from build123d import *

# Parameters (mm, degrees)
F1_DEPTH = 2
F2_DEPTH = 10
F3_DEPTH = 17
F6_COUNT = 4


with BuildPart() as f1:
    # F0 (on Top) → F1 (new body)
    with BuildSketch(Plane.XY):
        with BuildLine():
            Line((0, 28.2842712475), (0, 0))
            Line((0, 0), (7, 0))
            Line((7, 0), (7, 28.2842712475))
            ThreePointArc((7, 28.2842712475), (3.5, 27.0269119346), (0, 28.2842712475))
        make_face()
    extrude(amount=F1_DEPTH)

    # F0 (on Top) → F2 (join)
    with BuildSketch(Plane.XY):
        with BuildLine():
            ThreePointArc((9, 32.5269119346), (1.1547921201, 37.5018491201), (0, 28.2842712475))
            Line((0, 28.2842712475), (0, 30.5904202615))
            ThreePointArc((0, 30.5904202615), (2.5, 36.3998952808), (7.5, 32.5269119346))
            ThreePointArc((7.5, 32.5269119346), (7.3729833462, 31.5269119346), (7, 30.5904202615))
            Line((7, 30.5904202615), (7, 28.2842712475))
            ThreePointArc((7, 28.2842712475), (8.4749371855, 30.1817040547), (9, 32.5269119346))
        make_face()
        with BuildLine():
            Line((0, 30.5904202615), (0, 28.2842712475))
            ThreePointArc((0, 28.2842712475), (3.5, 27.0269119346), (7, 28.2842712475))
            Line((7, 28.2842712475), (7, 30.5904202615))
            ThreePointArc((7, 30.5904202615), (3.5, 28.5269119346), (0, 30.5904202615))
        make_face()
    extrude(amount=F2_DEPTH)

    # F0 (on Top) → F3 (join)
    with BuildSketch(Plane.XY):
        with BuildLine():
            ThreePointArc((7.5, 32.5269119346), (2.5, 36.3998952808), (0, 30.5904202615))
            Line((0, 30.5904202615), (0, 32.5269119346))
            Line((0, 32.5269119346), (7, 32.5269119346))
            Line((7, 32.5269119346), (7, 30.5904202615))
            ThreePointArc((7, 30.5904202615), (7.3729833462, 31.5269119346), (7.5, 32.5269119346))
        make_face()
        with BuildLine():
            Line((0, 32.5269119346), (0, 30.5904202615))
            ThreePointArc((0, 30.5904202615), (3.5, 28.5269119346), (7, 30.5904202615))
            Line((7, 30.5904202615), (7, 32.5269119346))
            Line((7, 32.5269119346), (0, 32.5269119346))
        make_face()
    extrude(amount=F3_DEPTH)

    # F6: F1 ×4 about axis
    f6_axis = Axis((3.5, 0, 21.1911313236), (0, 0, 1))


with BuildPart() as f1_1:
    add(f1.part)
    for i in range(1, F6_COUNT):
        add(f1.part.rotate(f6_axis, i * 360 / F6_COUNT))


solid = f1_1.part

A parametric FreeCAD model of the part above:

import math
import FreeCAD as App
import Part
import Sketcher

V = App.Vector

doc = App.newDocument("Part")
params = doc.addObject("Spreadsheet::Sheet", "Params")
for row, (alias, value) in enumerate([
    ("sketch1_radius", "5.5 mm"),
    ("sketch1_width", "7 mm"),
    ("pad1_length", "2 mm"),
    ("sketch2_radius", "4 mm"),
    ("sketch2_radius2", "5.5 mm"),
    ("pad2_length", "10 mm"),
    ("sketch3_radius", "4 mm"),
    ("pad3_length", "17 mm"),
], start=1):
    params.set(f"A{row}", alias)
    params.set(f"B{row}", "=" + value)
    params.setAlias(f"B{row}", alias)

body = doc.addObject("PartDesign::Body", "Body")

# Sketch on XY plane
sketch1 = body.newObject("Sketcher::SketchObject", "Sketch")
sketch1.AttachmentSupport = (doc.getObject("XY_Plane"), [""])
sketch1.MapMode = "FlatFace"
sketch1.addGeometry(Part.LineSegment(V(0, 28.284271, 0), V(0, 0, 0)), False)
sketch1.addGeometry(Part.LineSegment(V(0, 0, 0), V(7, 0, 0)), False)
sketch1.addGeometry(Part.LineSegment(V(7, 0, 0), V(7, 28.284271, 0)), False)
sketch1.addGeometry(Part.ArcOfCircle(Part.Circle(V(3.5, 32.526912, 0), V(0, 0, 1), 5.5), math.radians(-129.521196), math.radians(-50.478804)), False)
sketch1.addConstraint(Sketcher.Constraint("Coincident", 0, 2, 1, 1))
sketch1.addConstraint(Sketcher.Constraint("Coincident", 1, 2, 2, 1))
sketch1.addConstraint(Sketcher.Constraint("Coincident", 2, 2, 3, 2))
sketch1.addConstraint(Sketcher.Constraint("Coincident", 3, 1, 0, 1))
sketch1.addConstraint(Sketcher.Constraint("Vertical", 0))
sketch1.addConstraint(Sketcher.Constraint("Horizontal", 1))
sketch1.addConstraint(Sketcher.Constraint("Vertical", 2))
sketch1.addConstraint(Sketcher.Constraint("Coincident", 0, 2, -1, 1))
sketch1.addConstraint(Sketcher.Constraint("Horizontal", 2, 2, 3, 1))
sketch1.addConstraint(Sketcher.Constraint("Radius", 3, 5.5))
sketch1.addConstraint(Sketcher.Constraint("DistanceX", 1, 1, 1, 2, 7.0))
sketch1.addConstraint(Sketcher.Constraint("DistanceY", 0, 2, 0, 1, 28.284271))
sketch1.setExpression("Constraints[9]", "Params.sketch1_radius")
sketch1.setExpression("Constraints[10]", "Params.sketch1_width")
pad1 = body.newObject("PartDesign::Pad", "Pad")
pad1.Profile = sketch1
pad1.setExpression("Length", "Params.pad1_length")

# Sketch on XY plane
sketch2 = body.newObject("Sketcher::SketchObject", "Sketch001")
sketch2.AttachmentSupport = (doc.getObject("XY_Plane"), [""])
sketch2.MapMode = "FlatFace"
sketch2.addGeometry(Part.ArcOfCircle(Part.Circle(V(3.5, 32.526912, 0), V(0, 0, 1), 5.5), math.radians(0), math.radians(230.478804)), False)
sketch2.addGeometry(Part.ArcOfCircle(Part.Circle(V(3.5, 32.526912, 0), V(0, 0, 1), 5.5), math.radians(-129.521196), math.radians(-50.478804)), False)
sketch2.addGeometry(Part.ArcOfCircle(Part.Circle(V(3.5, 32.526912, 0), V(0, 0, 1), 5.5), math.radians(-50.478804), math.radians(0)), False)
sketch2.addGeometry(Part.ArcOfCircle(Part.Circle(V(3.5, 32.526912, 0), V(0, 0, 1), 4), math.radians(-28.955024), math.radians(0)), False)
sketch2.addGeometry(Part.ArcOfCircle(Part.Circle(V(3.5, 32.526912, 0), V(0, 0, 1), 4), math.radians(0), math.radians(331.044976)), False)
sketch2.addConstraint(Sketcher.Constraint("Tangent", 0, 2, 1, 1))
sketch2.addConstraint(Sketcher.Constraint("Tangent", 1, 2, 2, 1))
sketch2.addConstraint(Sketcher.Constraint("Tangent", 2, 2, 0, 1))
sketch2.addConstraint(Sketcher.Constraint("Tangent", 3, 1, 4, 2))
sketch2.addConstraint(Sketcher.Constraint("Coincident", 4, 1, 3, 2))
sketch2.addConstraint(Sketcher.Constraint("Coincident", 3, 3, 0, 3))
sketch2.addConstraint(Sketcher.Constraint("PointOnObject", 0, 2, -2))
sketch2.addConstraint(Sketcher.Constraint("Horizontal", 0, 2, 1, 2))
sketch2.addConstraint(Sketcher.Constraint("Horizontal", 4, 3, 2, 2))
sketch2.addConstraint(Sketcher.Constraint("Horizontal", 2, 2, 4, 1))
sketch2.addConstraint(Sketcher.Constraint("Vertical", 1, 2, 3, 1))
sketch2.addConstraint(Sketcher.Constraint("Radius", 3, 4.0))
sketch2.addConstraint(Sketcher.Constraint("Radius", 0, 5.5))
sketch2.addConstraint(Sketcher.Constraint("DistanceX", -1, 1, 1, 2, 7.0))
sketch2.addConstraint(Sketcher.Constraint("DistanceY", -1, 1, 0, 3, 32.526912))
sketch2.setExpression("Constraints[11]", "Params.sketch2_radius")
sketch2.setExpression("Constraints[12]", "Params.sketch2_radius2")
pad2 = body.newObject("PartDesign::Pad", "Pad001")
pad2.Profile = sketch2
pad2.setExpression("Length", "Params.pad2_length")

# Sketch on XY plane
sketch3 = body.newObject("Sketcher::SketchObject", "Sketch002")
sketch3.AttachmentSupport = (doc.getObject("XY_Plane"), [""])
sketch3.MapMode = "FlatFace"
sketch3.addGeometry(Part.ArcOfCircle(Part.Circle(V(3.5, 32.526912, 0), V(0, 0, 1), 4), math.radians(0), math.radians(331.044976)), False)
sketch3.addGeometry(Part.ArcOfCircle(Part.Circle(V(3.5, 32.526912, 0), V(0, 0, 1), 4), math.radians(-28.955024), math.radians(0)), False)
sketch3.addConstraint(Sketcher.Constraint("Tangent", 0, 1, 1, 2))
sketch3.addConstraint(Sketcher.Constraint("Coincident", 1, 1, 0, 2))
sketch3.addConstraint(Sketcher.Constraint("Horizontal", 1, 3, 0, 1))
sketch3.addConstraint(Sketcher.Constraint("Radius", 0, 4.0))
sketch3.addConstraint(Sketcher.Constraint("DistanceX", -1, 1, 1, 1, 7.0))
sketch3.addConstraint(Sketcher.Constraint("DistanceX", -1, 1, 0, 3, 3.5))
sketch3.addConstraint(Sketcher.Constraint("DistanceY", -1, 1, 0, 3, 32.526912))
sketch3.setExpression("Constraints[3]", "Params.sketch3_radius")
pad3 = body.newObject("PartDesign::Pad", "Pad002")
pad3.Profile = sketch3
pad3.setExpression("Length", "Params.pad3_length")
body2 = doc.addObject("PartDesign::Body", "Body001")
doc.recompute()

body2.BaseFeature = body
doc.recompute()

body3 = doc.addObject("PartDesign::Body", "Body002")
body3.BaseFeature = body
body3.Placement = App.Placement(V(3.5, -3.5, 0), App.Rotation(V(0, 0, 1), 90))
boolean = body2.newObject("PartDesign::Boolean", "Boolean")
boolean.Type = "Fuse"
boolean.addObjects([body3])
doc.recompute()

body4 = doc.addObject("PartDesign::Body", "Body003")
body4.BaseFeature = body
body4.Placement = App.Placement(V(7, 0, 0), App.Rotation(V(0, 0, 1), 180))
boolean2 = body2.newObject("PartDesign::Boolean", "Boolean001")
boolean2.Type = "Fuse"
boolean2.addObjects([body4])
doc.recompute()

body.Placement = App.Placement(V(3.5, 3.5, 0), App.Rotation(V(0, 0, 1), 270))
boolean3 = body2.newObject("PartDesign::Boolean", "Boolean002")
boolean3.Type = "Fuse"
boolean3.addObjects([body])

doc.recompute()
